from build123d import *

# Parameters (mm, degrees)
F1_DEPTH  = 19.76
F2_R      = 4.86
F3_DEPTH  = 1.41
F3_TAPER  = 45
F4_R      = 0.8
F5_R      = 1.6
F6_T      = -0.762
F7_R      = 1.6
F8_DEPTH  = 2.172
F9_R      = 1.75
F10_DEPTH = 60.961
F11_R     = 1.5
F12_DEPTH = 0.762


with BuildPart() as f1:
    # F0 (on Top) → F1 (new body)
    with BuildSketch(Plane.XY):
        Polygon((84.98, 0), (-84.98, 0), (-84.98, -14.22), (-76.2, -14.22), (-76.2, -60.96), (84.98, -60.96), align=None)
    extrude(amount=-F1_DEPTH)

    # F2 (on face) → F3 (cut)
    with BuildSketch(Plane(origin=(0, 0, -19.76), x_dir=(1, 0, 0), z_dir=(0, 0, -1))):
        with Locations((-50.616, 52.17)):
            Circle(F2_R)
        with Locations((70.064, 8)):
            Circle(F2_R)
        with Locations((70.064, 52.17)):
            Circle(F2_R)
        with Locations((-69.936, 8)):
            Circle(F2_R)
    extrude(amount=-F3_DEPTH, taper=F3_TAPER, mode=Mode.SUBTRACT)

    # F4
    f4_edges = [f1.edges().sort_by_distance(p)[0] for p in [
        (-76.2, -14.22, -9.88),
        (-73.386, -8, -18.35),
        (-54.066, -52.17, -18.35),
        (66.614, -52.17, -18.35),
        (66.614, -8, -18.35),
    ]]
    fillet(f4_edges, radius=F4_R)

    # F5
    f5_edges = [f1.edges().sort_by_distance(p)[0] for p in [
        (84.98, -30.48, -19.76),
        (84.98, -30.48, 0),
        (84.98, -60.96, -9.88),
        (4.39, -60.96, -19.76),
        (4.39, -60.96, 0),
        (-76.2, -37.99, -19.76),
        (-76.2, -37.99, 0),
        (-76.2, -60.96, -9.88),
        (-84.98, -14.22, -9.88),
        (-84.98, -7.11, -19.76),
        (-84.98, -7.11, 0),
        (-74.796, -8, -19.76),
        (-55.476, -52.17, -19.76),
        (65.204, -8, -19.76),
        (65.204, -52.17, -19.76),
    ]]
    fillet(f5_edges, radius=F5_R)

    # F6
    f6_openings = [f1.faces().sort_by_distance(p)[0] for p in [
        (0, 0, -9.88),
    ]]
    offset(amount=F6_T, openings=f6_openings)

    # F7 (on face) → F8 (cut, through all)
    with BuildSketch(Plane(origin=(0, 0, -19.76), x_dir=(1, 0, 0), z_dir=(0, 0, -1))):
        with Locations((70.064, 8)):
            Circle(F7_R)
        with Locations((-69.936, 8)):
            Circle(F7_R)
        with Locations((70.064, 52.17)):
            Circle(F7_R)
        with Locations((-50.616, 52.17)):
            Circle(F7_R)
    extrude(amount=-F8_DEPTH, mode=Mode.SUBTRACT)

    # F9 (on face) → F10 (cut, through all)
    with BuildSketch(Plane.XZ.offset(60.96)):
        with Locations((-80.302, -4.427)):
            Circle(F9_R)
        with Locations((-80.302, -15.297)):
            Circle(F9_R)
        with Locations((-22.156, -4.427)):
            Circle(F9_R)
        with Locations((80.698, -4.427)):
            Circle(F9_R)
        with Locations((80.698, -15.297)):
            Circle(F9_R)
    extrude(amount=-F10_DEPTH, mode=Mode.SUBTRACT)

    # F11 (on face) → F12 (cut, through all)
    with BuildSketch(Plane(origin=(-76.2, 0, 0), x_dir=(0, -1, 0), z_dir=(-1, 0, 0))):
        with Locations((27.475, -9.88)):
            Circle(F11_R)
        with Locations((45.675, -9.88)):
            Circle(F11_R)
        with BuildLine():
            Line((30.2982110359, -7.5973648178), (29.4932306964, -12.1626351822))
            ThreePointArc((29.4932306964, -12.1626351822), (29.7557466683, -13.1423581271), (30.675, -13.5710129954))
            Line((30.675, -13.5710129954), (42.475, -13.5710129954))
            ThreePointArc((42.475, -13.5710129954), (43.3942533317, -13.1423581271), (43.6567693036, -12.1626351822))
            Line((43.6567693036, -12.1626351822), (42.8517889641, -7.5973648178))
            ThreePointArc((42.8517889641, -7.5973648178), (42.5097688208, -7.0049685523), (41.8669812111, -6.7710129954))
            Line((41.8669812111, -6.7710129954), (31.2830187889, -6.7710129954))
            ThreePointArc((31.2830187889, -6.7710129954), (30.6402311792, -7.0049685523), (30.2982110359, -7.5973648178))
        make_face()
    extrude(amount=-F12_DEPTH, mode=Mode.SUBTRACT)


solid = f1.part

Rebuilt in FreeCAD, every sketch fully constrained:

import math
import FreeCAD as App
import Part
import Sketcher
from FreeCAD import Vector
Q = App.Units.Quantity


def edges_at(feature, points):
    """Names of the edges that pass closest to the given points."""
    edges = feature.Shape.Edges
    near = lambda p: min(range(len(edges)), key=lambda i: edges[i].distToShape(Part.Vertex(*p))[0])
    return sorted({f"Edge{near(p) + 1}" for p in points})


def faces_at(feature, points):
    """Names of the faces that lie closest to the given points."""
    faces = feature.Shape.Faces
    near = lambda p: min(range(len(faces)), key=lambda i: faces[i].distToShape(Part.Vertex(*p))[0])
    return sorted({f"Face{near(p) + 1}" for p in points})


def add_polygon(sketch, points):
    """Adds a closed chain of lines whose ends are joined by coincident constraints."""
    first, n = sketch.GeometryCount, len(points)
    for a, b in zip(points, points[1:] + points[:1]):
        sketch.addGeometry(Part.LineSegment(App.Vector(*a, 0), App.Vector(*b, 0)), False)
    for i in range(n):
        sketch.addConstraint(Sketcher.Constraint("Coincident", first + i, 2, first + (i + 1) % n, 1))

doc = App.newDocument("Part")
body = doc.addObject("PartDesign::Body", "Body")

sketch1 = body.newObject("Sketcher::SketchObject", "Sketch")
sketch1.AttachmentSupport = (doc.getObject("XY_Plane"), [""])
sketch1.MapMode = "FlatFace"
add_polygon(sketch1, [(85, 0), (-85, 0), (-85, -14), (-76, -14), (-76, -61), (85, -61)])
sketch1.addConstraint([
    Sketcher.Constraint("Horizontal", 0),
    Sketcher.Constraint("Vertical", 1),
    Sketcher.Constraint("Horizontal", 2),
    Sketcher.Constraint("Vertical", 3),
    Sketcher.Constraint("Horizontal", 4),
    Sketcher.Constraint("Vertical", 5),
    Sketcher.Constraint("Symmetric", 0, 2, 5, 2, -1, 1),
    Sketcher.Constraint("DistanceX", 0, 2, 0, 1, 169.96),
    Sketcher.Constraint("DistanceX", 2, 1, 2, 2, 8.78),
    Sketcher.Constraint("DistanceY", 1, 2, 1, 1, 14.22),
    Sketcher.Constraint("DistanceY", 3, 2, 3, 1, 46.74),
])
pad1 = body.newObject("PartDesign::Pad", "Pad")
pad1.Profile = sketch1
pad1.Length = 19.76
pad1.Reversed = True

sketch2 = body.newObject("Sketcher::SketchObject", "Sketch001")
sketch2.AttachmentSupport = (doc.getObject("XY_Plane"), [""])
sketch2.MapMode = "FlatFace"
sketch2.AttachmentOffset = App.Placement(Vector(0, 0, -19.76), App.Rotation())
sketch2.addGeometry([
    Part.Circle(Vector(-50.6, -52.2, 0), Vector(0, 0, 1), 4.9),
    Part.Circle(Vector(70.1, -8, 0), Vector(0, 0, 1), 4.9),
    Part.Circle(Vector(70.1, -52.2, 0), Vector(0, 0, 1), 4.9),
    Part.Circle(Vector(-69.9, -8, 0), Vector(0, 0, 1), 4.9),
], False)
sketch2.addConstraint([
    Sketcher.Constraint("Equal", 0, 1),
    Sketcher.Constraint("Equal", 1, 2),
    Sketcher.Constraint("Equal", 2, 3),
    Sketcher.Constraint("Horizontal", 0, 3, 2, 3),
    Sketcher.Constraint("Horizontal", 1, 3, 3, 3),
    Sketcher.Constraint("Vertical", 1, 3, 2, 3),
    Sketcher.Constraint("Diameter", 0, 9.72),
    Sketcher.Constraint("DistanceY", 1, 3, -1, 1, 8.0),
    Sketcher.Constraint("DistanceX", 3, 3, 1, 3, 140.0),
    Sketcher.Constraint("DistanceY", 0, 3, -1, 1, 52.17),
    Sketcher.Constraint("DistanceX", 0, 3, 1, 3, 120.68),
    Sketcher.Constraint("DistanceX", 0, 3, -1, 1, 50.616),
])
pocket1 = body.newObject("PartDesign::Pocket", "Pocket")
pocket1.Profile = sketch2
pocket1.Length = 1.41
pocket1.Reversed = True
pocket1.TaperAngle = -45
doc.recompute()

fillet = body.newObject("PartDesign::Fillet", "Fillet")
fillet.Base = (pocket1, edges_at(pocket1, [
    (-76.2, -14.22, -9.88),
    (-73.386, -8, -18.35),
    (-54.066, -52.17, -18.35),
    (66.614, -52.17, -18.35),
    (66.614, -8, -18.35),
]))
fillet.Radius = 0.8
doc.recompute()

fillet2 = body.newObject("PartDesign::Fillet", "Fillet001")
fillet2.Base = (fillet, edges_at(fillet, [
    (84.98, -30.48, -19.76),
    (84.98, -30.48, 0),
    (84.98, -60.96, -9.88),
    (4.39, -60.96, -19.76),
    (4.39, -60.96, 0),
    (-76.2, -37.99, -19.76),
    (-76.2, -37.99, 0),
    (-76.2, -60.96, -9.88),
    (-84.98, -14.22, -9.88),
    (-84.98, -7.11, -19.76),
    (-84.98, -7.11, 0),
    (-74.796, -8, -19.76),
    (-55.476, -52.17, -19.76),
    (65.204, -8, -19.76),
    (65.204, -52.17, -19.76),
]))
fillet2.Radius = 1.6
doc.recompute()

thickness = body.newObject("PartDesign::Thickness", "Thickness")
thickness.Base = (fillet2, faces_at(fillet2, [(0, 0, -9.88)]))
thickness.Value = 0.762
thickness.Reversed = True
thickness.Join = "Arc"

sketch3 = body.newObject("Sketcher::SketchObject", "Sketch002")
sketch3.AttachmentSupport = (doc.getObject("XY_Plane"), [""])
sketch3.MapMode = "FlatFace"
sketch3.AttachmentOffset = App.Placement(Vector(0, 0, -19.76), App.Rotation())
sketch3.addGeometry([
    Part.Circle(Vector(70.1, -8, 0), Vector(0, 0, 1), 1.6),
    Part.Circle(Vector(-69.9, -8, 0), Vector(0, 0, 1), 1.6),
    Part.Circle(Vector(70.1, -52.2, 0), Vector(0, 0, 1), 1.6),
    Part.Circle(Vector(-50.6, -52.2, 0), Vector(0, 0, 1), 1.6),
], False)
sketch3.addConstraint([
    Sketcher.Constraint("Equal", 0, 1),
    Sketcher.Constraint("Equal", 1, 2),
    Sketcher.Constraint("Equal", 2, 3),
    Sketcher.Constraint("Horizontal", 0, 3, 1, 3),
    Sketcher.Constraint("Horizontal", 2, 3, 3, 3),
    Sketcher.Constraint("Vertical", 0, 3, 2, 3),
    Sketcher.Constraint("Diameter", 0, 3.2),
    Sketcher.Constraint("DistanceY", 0, 3, -1, 1, 8.0),
    Sketcher.Constraint("DistanceX", 1, 3, 0, 3, 140.0),
    Sketcher.Constraint("DistanceY", 2, 3, -1, 1, 52.17),
    Sketcher.Constraint("DistanceX", 1, 3, 3, 3, 19.32),
    Sketcher.Constraint("DistanceX", -1, 1, 0, 3, 70.064),
])
pocket2 = body.newObject("PartDesign::Pocket", "Pocket001")
pocket2.Profile = sketch3
pocket2.Length = 2.172
pocket2.Reversed = True

sketch4 = body.newObject("Sketcher::SketchObject", "Sketch003")
sketch4.AttachmentSupport = (doc.getObject("XZ_Plane"), [""])
sketch4.MapMode = "FlatFace"
sketch4.AttachmentOffset = App.Placement(Vector(0, 0, 60.96), App.Rotation())
sketch4.addGeometry([
    Part.Circle(Vector(-80.3, -4.4, 0), Vector(0, 0, 1), 1.8),
    Part.Circle(Vector(-80.3, -15.3, 0), Vector(0, 0, 1), 1.8),
    Part.Circle(Vector(-22.2, -4.4, 0), Vector(0, 0, 1), 1.8),
    Part.Circle(Vector(80.7, -4.4, 0), Vector(0, 0, 1), 1.8),
    Part.Circle(Vector(80.7, -15.3, 0), Vector(0, 0, 1), 1.8),
], False)
sketch4.addConstraint([
    Sketcher.Constraint("Equal", 0, 1),
    Sketcher.Constraint("Equal", 1, 2),
    Sketcher.Constraint("Equal", 2, 3),
    Sketcher.Constraint("Equal", 3, 4),
    Sketcher.Constraint("Horizontal", 0, 3, 2, 3),
    Sketcher.Constraint("Horizontal", 2, 3, 3, 3),
    Sketcher.Constraint("Horizontal", 1, 3, 4, 3),
    Sketcher.Constraint("Vertical", 0, 3, 1, 3),
    Sketcher.Constraint("Vertical", 3, 3, 4, 3),
    Sketcher.Constraint("Diameter", 0, 3.5),
    Sketcher.Constraint("DistanceX", 0, 3, 3, 3, 161.0),
    Sketcher.Constraint("DistanceY", 1, 3, 0, 3, 10.87),
    Sketcher.Constraint("DistanceX", 0, 3, -1, 1, 80.302),
    Sketcher.Constraint("DistanceY", 0, 3, -1, 1, 4.427),
    Sketcher.Constraint("DistanceX", 2, 3, -1, 1, 22.156),
])
pocket3 = body.newObject("PartDesign::Pocket", "Pocket002")
pocket3.Profile = sketch4
pocket3.Type = "ThroughAll"

sketch5 = body.newObject("Sketcher::SketchObject", "Sketch004")
sketch5.AttachmentSupport = (doc.getObject("YZ_Plane"), [""])
sketch5.MapMode = "FlatFace"
sketch5.AttachmentOffset = App.Placement(Vector(0, 0, -76.2), App.Rotation())
sketch5.addGeometry([
    Part.Circle(Vector(-27.5, -9.9, 0), Vector(0, 0, 1), 1.5),
    Part.Circle(Vector(-45.7, -9.9, 0), Vector(0, 0, 1), 1.5),
    Part.LineSegment(Vector(-30.3, -7.6, 0), Vector(-29.5, -12.2, 0)),
    Part.ArcOfCircle(Part.Circle(Vector(-30.7, -12.4, 0), Vector(0, 0, 1), 1.2), math.radians(-90), math.radians(10)),
    Part.LineSegment(Vector(-30.7, -13.6, 0), Vector(-42.5, -13.6, 0)),
    Part.ArcOfCircle(Part.Circle(Vector(-42.5, -12.4, 0), Vector(0, 0, 1), 1.2), math.radians(170), math.radians(270)),
    Part.LineSegment(Vector(-43.7, -12.2, 0), Vector(-42.9, -7.6, 0)),
    Part.ArcOfCircle(Part.Circle(Vector(-41.9, -7.8, 0), Vector(0, 0, 1), 1), math.radians(90), math.radians(170)),
    Part.LineSegment(Vector(-41.9, -6.8, 0), Vector(-31.3, -6.8, 0)),
    Part.ArcOfCircle(Part.Circle(Vector(-31.3, -7.8, 0), Vector(0, 0, 1), 1), math.radians(10), math.radians(90)),
], False)
sketch5.addConstraint([
    Sketcher.Constraint("Tangent", 2, 2, 3, 2),
    Sketcher.Constraint("Tangent", 3, 1, 4, 1),
    Sketcher.Constraint("Tangent", 4, 2, 5, 2),
    Sketcher.Constraint("Tangent", 5, 1, 6, 1),
    Sketcher.Constraint("Tangent", 6, 2, 7, 2),
    Sketcher.Constraint("Tangent", 7, 1, 8, 1),
    Sketcher.Constraint("Tangent", 8, 2, 9, 2),
    Sketcher.Constraint("Tangent", 9, 1, 2, 1),
    Sketcher.Constraint("Horizontal", 4),
    Sketcher.Constraint("Horizontal", 8),
    Sketcher.Constraint("Equal", 0, 1),
    Sketcher.Constraint("Equal", 3, 5),
    Sketcher.Constraint("Equal", 7, 9),
    Sketcher.Constraint("Horizontal", 0, 3, 1, 3),
    Sketcher.Constraint("Horizontal", 2, 2, 5, 1),
    Sketcher.Constraint("Diameter", 0, 3.0),
    Sketcher.Constraint("Radius", 7, 1.0),
    Sketcher.Constraint("Radius", 3, 1.2),
    Sketcher.Constraint("Angle", 2, Q("-80 deg")),
    Sketcher.Constraint("DistanceX", 4, 2, 4, 1, 11.8),
    Sketcher.Constraint("DistanceX", 1, 3, 3, 3, 15.0),
    Sketcher.Constraint("DistanceX", 5, 3, 0, 3, 15.0),
    Sketcher.Constraint("DistanceY", 5, 3, 7, 3, 4.6),
    Sketcher.Constraint("DistanceY", 0, 3, -1, 1, 9.88),
    Sketcher.Constraint("DistanceX", 0, 3, -1, 1, 27.475),
    Sketcher.Constraint("DistanceY", 3, 3, -1, 1, 12.371013),
])
pocket4 = body.newObject("PartDesign::Pocket", "Pocket003")
pocket4.Profile = sketch5
pocket4.Length = 0.762
pocket4.Reversed = True

doc.recompute()
